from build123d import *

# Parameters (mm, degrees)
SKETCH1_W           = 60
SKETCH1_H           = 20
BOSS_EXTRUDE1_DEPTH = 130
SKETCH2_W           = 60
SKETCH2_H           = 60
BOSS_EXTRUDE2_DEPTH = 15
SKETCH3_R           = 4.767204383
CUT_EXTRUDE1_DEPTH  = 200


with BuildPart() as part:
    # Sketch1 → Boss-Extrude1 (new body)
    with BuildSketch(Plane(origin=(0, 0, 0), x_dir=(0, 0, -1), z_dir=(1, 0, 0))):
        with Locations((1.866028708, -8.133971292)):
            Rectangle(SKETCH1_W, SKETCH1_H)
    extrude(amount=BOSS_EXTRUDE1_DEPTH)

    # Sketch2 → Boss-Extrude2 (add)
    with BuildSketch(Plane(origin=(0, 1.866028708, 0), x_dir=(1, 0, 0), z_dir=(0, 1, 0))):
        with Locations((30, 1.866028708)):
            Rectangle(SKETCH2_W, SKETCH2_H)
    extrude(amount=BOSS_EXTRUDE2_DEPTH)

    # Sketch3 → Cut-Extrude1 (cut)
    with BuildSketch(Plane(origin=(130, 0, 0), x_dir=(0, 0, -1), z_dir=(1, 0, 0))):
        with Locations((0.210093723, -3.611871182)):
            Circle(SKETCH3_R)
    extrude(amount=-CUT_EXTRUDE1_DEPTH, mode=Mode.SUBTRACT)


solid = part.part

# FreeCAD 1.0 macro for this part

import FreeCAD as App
import Part
import Sketcher
from FreeCAD import Vector

doc = App.newDocument("Part")
body = doc.addObject("PartDesign::Body", "Body")

# Sketch on YZ plane
sketch1 = body.newObject("Sketcher::SketchObject", "Sketch")
sketch1.AttachmentSupport = (doc.getObject("YZ_Plane"), [""])
sketch1.MapMode = "FlatFace"
sketch1.addGeometry([
    Part.LineSegment(Vector(1.866029, 28.133971, 0), Vector(-18.133971, 28.133971, 0)),
    Part.LineSegment(Vector(-18.133971, 28.133971, 0), Vector(-18.133971, -31.866029, 0)),
    Part.LineSegment(Vector(-18.133971, -31.866029, 0), Vector(1.866029, -31.866029, 0)),
    Part.LineSegment(Vector(1.866029, -31.866029, 0), Vector(1.866029, 28.133971, 0)),
], False)
sketch1.addConstraint([
    Sketcher.Constraint("Coincident", 0, 2, 1, 1),
    Sketcher.Constraint("Coincident", 1, 2, 2, 1),
    Sketcher.Constraint("Coincident", 2, 2, 3, 1),
    Sketcher.Constraint("Coincident", 3, 2, 0, 1),
    Sketcher.Constraint("Horizontal", 0),
    Sketcher.Constraint("Vertical", 1),
    Sketcher.Constraint("Horizontal", 2),
    Sketcher.Constraint("Vertical", 3),
    Sketcher.Constraint("DistanceX", 0, 2, 0, 1, 20.0),
    Sketcher.Constraint("DistanceY", 1, 2, 1, 1, 60.0),
    Sketcher.Constraint("DistanceX", 0, 2, -1, 1, 18.133971),
    Sketcher.Constraint("DistanceY", -1, 1, 0, 2, 28.133971),
])
pad1 = body.newObject("PartDesign::Pad", "Pad")
pad1.Profile = sketch1
pad1.Length = 130

# Sketch on XZ plane
sketch2 = body.newObject("Sketcher::SketchObject", "Sketch001")
sketch2.AttachmentSupport = (doc.getObject("XZ_Plane"), [""])
sketch2.MapMode = "FlatFace"
sketch2.AttachmentOffset = App.Placement(Vector(0, 0, -1.866029), App.Rotation())
sketch2.addGeometry([
    Part.LineSegment(Vector(0, -31.866029, 0), Vector(0, 28.133971, 0)),
    Part.LineSegment(Vector(0, 28.133971, 0), Vector(60, 28.133971, 0)),
    Part.LineSegment(Vector(60, 28.133971, 0), Vector(60, -31.866029, 0)),
    Part.LineSegment(Vector(60, -31.866029, 0), Vector(0, -31.866029, 0)),
], False)
sketch2.addConstraint([
    Sketcher.Constraint("Coincident", 0, 2, 1, 1),
    Sketcher.Constraint("Coincident", 1, 2, 2, 1),
    Sketcher.Constraint("Coincident", 2, 2, 3, 1),
    Sketcher.Constraint("Coincident", 3, 2, 0, 1),
    Sketcher.Constraint("Vertical", 0),
    Sketcher.Constraint("Horizontal", 1),
    Sketcher.Constraint("Vertical", 2),
    Sketcher.Constraint("Horizontal", 3),
    Sketcher.Constraint("PointOnObject", 0, 2, -2),
    Sketcher.Constraint("Equal", 3, 0),
    Sketcher.Constraint("DistanceX", 1, 1, 1, 2, 60.0),
    Sketcher.Constraint("DistanceY", -1, 1, 0, 2, 28.133971),
])
pad2 = body.newObject("PartDesign::Pad", "Pad001")
pad2.Profile = sketch2
pad2.Length = 15
pad2.Reversed = True

# Sketch on YZ plane
sketch3 = body.newObject("Sketcher::SketchObject", "Sketch002")
sketch3.AttachmentSupport = (doc.getObject("YZ_Plane"), [""])
sketch3.MapMode = "FlatFace"
sketch3.AttachmentOffset = App.Placement(Vector(0, 0, 130), App.Rotation())
sketch3.addGeometry(Part.Circle(Vector(-3.611871, -0.210094, 0), Vector(0, 0, 1), 4.767204), False)
sketch3.addConstraint([
    Sketcher.Constraint("Diameter", 0, 9.534409),
    Sketcher.Constraint("DistanceX", 0, 3, -1, 1, 3.611871),
    Sketcher.Constraint("DistanceY", 0, 3, -1, 1, 0.210094),
])
pocket1 = body.newObject("PartDesign::Pocket", "Pocket")
pocket1.Profile = sketch3
pocket1.Length = 200

doc.recompute()
